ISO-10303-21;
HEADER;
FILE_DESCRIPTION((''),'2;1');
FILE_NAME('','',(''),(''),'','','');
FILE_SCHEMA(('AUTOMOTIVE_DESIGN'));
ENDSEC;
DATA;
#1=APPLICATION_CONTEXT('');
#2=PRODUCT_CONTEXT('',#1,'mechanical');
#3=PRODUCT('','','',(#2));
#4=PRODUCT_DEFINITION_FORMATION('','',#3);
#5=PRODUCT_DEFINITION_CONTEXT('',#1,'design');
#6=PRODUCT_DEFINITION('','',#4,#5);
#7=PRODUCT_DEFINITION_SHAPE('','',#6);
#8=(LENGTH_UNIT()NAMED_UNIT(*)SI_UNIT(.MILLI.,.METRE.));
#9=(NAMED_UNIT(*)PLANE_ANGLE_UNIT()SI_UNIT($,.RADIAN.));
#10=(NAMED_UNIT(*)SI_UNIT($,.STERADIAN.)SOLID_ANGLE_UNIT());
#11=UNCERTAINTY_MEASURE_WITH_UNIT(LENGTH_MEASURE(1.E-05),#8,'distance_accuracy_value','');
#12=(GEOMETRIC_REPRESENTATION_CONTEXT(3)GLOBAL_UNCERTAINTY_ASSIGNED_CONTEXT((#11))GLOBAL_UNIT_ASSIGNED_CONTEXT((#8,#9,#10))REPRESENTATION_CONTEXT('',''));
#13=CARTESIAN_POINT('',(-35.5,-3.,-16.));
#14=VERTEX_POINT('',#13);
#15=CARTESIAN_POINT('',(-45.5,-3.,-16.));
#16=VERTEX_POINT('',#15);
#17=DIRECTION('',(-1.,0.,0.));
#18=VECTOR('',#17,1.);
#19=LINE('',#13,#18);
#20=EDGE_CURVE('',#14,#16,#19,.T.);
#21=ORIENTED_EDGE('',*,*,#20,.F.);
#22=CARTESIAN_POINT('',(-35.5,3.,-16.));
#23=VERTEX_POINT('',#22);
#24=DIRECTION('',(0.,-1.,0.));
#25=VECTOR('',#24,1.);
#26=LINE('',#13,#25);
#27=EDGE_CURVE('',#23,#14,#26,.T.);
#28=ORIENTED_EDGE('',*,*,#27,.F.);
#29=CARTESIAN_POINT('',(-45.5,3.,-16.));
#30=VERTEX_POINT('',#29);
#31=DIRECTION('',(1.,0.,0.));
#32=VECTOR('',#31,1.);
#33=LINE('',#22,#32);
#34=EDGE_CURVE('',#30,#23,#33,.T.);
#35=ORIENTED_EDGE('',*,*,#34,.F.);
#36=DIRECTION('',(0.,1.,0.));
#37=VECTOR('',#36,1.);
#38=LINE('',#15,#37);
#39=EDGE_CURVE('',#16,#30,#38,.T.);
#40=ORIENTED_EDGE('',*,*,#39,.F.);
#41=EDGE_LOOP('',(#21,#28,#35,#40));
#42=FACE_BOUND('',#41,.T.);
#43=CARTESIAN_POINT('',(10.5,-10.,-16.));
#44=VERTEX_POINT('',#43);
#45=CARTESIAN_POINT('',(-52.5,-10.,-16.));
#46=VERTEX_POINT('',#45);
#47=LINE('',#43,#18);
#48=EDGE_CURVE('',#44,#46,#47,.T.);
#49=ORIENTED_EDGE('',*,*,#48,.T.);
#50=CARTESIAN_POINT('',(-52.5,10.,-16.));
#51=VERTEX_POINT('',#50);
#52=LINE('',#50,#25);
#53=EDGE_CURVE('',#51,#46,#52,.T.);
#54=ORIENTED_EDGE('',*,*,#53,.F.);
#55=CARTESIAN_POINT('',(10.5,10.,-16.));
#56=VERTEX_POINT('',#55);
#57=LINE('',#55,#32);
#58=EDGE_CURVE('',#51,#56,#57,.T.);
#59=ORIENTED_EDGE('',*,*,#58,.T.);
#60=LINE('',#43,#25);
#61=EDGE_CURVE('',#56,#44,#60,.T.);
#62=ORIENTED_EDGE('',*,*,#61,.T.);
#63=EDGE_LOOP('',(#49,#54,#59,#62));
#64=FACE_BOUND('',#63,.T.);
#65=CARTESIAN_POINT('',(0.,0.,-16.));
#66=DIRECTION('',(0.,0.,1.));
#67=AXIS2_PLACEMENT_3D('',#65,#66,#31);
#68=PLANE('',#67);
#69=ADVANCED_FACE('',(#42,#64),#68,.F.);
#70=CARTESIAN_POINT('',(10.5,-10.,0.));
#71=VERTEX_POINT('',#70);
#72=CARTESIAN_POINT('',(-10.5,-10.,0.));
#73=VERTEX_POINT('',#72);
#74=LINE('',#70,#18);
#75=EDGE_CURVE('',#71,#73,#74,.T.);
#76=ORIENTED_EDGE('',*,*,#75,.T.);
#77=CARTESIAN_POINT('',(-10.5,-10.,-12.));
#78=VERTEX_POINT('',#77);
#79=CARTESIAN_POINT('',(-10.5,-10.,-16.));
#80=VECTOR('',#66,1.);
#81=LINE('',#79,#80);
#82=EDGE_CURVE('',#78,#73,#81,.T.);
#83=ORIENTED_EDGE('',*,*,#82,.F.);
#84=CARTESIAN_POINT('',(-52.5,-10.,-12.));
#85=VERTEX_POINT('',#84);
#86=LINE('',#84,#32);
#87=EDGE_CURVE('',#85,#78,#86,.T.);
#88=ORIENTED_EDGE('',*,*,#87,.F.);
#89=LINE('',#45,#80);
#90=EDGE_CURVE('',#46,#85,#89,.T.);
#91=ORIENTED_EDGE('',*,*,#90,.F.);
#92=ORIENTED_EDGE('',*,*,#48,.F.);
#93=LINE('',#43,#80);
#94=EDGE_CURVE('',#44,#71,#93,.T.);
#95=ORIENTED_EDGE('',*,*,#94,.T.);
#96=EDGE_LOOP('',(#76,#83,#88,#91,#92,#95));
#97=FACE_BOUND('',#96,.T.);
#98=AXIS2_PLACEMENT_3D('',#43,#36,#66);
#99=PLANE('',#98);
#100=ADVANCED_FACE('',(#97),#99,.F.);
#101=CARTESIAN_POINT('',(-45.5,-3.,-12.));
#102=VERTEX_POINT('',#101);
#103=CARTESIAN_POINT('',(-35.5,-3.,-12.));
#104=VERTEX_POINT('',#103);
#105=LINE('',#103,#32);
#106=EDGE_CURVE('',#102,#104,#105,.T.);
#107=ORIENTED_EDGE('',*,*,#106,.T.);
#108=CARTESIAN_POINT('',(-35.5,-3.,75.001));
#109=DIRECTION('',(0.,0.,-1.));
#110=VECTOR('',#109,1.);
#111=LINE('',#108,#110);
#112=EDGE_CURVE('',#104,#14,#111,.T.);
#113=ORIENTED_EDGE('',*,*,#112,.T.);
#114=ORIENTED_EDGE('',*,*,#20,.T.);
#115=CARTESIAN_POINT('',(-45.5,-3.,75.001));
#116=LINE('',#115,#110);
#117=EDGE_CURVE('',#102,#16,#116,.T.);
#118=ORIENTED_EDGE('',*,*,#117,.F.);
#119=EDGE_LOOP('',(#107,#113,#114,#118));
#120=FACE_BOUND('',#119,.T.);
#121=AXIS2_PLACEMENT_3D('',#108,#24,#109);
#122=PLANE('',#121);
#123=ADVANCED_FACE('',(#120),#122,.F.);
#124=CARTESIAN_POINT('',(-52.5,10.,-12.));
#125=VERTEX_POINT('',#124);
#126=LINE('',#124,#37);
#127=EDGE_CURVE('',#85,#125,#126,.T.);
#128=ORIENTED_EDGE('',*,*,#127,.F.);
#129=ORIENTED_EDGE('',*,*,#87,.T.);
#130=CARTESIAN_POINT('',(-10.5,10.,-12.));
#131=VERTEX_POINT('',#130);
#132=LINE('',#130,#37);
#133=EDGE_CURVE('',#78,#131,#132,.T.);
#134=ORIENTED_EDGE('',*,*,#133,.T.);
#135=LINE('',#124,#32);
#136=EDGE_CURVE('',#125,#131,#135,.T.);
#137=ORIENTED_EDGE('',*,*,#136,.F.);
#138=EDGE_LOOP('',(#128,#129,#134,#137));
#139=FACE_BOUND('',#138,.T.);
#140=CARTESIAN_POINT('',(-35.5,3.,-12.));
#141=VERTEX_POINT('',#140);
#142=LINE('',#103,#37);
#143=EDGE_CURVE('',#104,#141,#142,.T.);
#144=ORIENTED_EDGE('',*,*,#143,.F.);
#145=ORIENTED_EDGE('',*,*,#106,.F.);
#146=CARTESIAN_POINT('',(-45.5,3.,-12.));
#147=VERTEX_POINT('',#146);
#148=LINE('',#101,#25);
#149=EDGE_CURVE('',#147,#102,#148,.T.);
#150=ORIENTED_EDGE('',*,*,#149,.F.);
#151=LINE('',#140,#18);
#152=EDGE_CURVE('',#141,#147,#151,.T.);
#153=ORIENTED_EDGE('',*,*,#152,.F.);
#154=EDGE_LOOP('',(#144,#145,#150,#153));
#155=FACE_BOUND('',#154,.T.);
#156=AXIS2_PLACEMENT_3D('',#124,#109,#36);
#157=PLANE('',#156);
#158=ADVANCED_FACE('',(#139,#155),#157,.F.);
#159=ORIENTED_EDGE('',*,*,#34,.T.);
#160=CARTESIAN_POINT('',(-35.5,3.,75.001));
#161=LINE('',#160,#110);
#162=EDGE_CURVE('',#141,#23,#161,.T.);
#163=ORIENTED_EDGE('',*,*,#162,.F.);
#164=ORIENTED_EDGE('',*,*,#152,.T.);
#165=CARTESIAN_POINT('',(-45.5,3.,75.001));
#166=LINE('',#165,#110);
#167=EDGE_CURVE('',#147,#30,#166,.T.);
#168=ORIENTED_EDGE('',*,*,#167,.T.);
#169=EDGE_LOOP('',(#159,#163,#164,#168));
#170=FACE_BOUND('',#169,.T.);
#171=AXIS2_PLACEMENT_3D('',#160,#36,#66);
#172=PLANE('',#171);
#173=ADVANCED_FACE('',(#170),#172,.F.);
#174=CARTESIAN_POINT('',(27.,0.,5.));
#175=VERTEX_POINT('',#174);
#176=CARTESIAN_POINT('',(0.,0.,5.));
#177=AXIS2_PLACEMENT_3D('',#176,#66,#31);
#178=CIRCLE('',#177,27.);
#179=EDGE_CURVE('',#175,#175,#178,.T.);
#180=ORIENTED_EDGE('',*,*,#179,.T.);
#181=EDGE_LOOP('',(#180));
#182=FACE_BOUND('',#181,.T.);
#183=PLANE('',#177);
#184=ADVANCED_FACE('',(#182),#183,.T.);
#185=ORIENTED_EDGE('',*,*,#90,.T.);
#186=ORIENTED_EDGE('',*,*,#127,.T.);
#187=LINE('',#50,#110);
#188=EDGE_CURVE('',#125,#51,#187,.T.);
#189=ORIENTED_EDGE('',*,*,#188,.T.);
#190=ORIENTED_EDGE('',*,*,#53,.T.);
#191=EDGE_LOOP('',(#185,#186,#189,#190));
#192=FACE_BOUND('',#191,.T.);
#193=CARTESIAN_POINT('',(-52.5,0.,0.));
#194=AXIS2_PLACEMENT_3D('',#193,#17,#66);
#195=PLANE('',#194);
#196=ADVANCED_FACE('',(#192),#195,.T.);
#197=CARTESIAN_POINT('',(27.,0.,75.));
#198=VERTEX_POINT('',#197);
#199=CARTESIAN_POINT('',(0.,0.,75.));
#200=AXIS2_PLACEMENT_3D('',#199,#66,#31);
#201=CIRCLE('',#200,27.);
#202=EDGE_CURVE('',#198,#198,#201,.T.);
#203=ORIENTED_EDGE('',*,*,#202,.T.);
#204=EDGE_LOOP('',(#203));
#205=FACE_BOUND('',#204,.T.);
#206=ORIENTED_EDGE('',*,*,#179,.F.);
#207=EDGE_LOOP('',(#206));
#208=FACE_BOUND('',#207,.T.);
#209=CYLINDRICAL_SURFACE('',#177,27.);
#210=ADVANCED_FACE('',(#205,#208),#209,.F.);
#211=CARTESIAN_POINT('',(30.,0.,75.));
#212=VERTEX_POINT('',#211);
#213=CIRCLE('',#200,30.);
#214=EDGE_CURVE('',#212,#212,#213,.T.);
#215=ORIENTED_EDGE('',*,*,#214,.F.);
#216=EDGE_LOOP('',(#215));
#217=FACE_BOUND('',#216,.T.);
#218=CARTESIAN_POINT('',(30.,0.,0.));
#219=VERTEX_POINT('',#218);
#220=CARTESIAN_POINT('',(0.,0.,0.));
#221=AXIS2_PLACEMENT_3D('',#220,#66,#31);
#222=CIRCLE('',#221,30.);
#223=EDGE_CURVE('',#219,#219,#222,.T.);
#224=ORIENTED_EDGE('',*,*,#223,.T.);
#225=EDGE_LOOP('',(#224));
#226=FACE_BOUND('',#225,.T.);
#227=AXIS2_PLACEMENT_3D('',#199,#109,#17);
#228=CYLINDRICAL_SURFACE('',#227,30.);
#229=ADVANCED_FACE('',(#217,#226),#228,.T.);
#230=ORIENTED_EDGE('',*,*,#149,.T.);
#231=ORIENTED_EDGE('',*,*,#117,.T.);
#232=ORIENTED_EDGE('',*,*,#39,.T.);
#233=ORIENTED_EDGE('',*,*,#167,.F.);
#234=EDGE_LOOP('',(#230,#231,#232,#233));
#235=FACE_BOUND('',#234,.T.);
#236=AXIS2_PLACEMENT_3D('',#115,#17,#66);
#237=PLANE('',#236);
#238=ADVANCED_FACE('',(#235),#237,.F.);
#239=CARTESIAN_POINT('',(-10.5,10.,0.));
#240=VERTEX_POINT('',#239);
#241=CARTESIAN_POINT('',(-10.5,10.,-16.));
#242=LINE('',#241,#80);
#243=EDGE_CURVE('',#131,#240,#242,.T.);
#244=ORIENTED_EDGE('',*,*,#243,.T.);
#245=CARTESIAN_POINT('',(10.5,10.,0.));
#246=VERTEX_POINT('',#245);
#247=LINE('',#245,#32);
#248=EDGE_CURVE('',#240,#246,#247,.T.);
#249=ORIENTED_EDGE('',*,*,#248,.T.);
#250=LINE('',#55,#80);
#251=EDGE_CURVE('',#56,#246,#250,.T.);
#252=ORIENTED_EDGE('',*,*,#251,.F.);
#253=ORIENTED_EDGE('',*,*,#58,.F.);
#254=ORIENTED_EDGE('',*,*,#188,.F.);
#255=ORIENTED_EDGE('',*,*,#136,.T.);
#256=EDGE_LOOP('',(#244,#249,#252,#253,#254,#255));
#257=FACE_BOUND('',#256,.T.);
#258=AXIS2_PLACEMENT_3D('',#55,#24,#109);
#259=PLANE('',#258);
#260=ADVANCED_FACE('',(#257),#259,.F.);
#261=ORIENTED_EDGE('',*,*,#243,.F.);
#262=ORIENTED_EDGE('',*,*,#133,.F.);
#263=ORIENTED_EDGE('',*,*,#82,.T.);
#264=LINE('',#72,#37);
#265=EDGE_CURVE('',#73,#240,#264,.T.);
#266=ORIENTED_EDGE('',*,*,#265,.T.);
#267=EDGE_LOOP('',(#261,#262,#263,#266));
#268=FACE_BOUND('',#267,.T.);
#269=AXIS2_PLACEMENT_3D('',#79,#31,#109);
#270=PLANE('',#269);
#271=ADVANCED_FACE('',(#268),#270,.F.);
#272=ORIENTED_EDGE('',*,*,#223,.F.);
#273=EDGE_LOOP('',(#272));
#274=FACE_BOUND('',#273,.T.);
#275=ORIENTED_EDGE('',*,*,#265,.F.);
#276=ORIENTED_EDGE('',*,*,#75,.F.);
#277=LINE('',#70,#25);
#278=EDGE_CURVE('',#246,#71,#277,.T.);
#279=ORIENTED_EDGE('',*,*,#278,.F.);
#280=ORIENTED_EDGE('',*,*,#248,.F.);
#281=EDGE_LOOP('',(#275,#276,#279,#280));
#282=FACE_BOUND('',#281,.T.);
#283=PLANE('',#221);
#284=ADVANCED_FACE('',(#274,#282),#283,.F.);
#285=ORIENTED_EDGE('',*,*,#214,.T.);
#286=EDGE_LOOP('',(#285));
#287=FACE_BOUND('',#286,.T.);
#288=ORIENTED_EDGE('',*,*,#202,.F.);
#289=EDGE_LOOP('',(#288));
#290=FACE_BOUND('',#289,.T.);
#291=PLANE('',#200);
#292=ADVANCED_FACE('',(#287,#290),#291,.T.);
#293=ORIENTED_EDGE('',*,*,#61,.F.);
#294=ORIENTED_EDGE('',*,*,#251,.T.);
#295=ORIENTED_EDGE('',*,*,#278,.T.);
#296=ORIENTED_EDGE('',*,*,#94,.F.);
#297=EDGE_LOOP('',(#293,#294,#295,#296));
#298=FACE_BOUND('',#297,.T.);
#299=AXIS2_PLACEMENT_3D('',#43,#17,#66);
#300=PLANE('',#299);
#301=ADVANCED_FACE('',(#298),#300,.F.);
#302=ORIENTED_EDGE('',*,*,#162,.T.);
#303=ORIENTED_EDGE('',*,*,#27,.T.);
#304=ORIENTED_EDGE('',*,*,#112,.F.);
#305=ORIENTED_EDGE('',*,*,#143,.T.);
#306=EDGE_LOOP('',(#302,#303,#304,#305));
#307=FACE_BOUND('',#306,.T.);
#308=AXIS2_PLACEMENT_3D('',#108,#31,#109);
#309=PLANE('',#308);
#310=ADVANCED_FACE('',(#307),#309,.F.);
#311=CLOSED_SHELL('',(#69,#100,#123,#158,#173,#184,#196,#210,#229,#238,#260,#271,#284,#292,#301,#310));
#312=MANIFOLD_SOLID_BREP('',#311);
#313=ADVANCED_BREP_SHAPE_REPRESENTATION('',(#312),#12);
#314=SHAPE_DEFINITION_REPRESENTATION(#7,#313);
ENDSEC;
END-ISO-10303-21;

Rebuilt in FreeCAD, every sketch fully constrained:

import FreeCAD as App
import Part
import Sketcher
from FreeCAD import Vector

doc = App.newDocument("Part")
body = doc.addObject("PartDesign::Body", "Body")

# Sketch on XY plane
sketch1 = doc.addObject("Sketcher::SketchObject", "Sketch")
body.addObject(sketch1)
sketch1.AttachmentSupport = (doc.XY_Plane, [""])
sketch1.MapMode = "FlatFace"
sketch1.addGeometry(Part.Circle(Vector(0, 0, 0), Vector(0, 0, 1), 30), False)
sketch1.addConstraint([
    Sketcher.Constraint("Coincident", 0, 3, -1, 1),
    Sketcher.Constraint("Diameter", 0, 60.0),
])
pad1 = doc.addObject("PartDesign::Pad", "Pad")
body.addObject(pad1)
pad1.Profile = sketch1
pad1.Length = 75

# Sketch on XY plane
sketch2 = doc.addObject("Sketcher::SketchObject", "Sketch001")
body.addObject(sketch2)
sketch2.AttachmentSupport = (doc.XY_Plane, [""])
sketch2.MapMode = "FlatFace"
sketch2.AttachmentOffset = App.Placement(Vector(0, 0, 75), App.Rotation())
sketch2.addGeometry(Part.Circle(Vector(0, 0, 0), Vector(0, 0, 1), 27), False)
sketch2.addConstraint([
    Sketcher.Constraint("Coincident", 0, 3, -1, 1),
    Sketcher.Constraint("Diameter", 0, 54.0),
])
pocket1 = doc.addObject("PartDesign::Pocket", "Pocket")
body.addObject(pocket1)
pocket1.Profile = sketch2
pocket1.Length = 70

# Sketch on XY plane
sketch3 = doc.addObject("Sketcher::SketchObject", "Sketch002")
body.addObject(sketch3)
sketch3.AttachmentSupport = (doc.XY_Plane, [""])
sketch3.MapMode = "FlatFace"
sketch3.addGeometry([
    Part.LineSegment(Vector(10, 10, 0), Vector(10, -10, 0)),
    Part.LineSegment(Vector(10, -10, 0), Vector(-10, -10, 0)),
    Part.LineSegment(Vector(-10, -10, 0), Vector(-10, 10, 0)),
    Part.LineSegment(Vector(-10, 10, 0), Vector(10, 10, 0)),
], False)
sketch3.addConstraint([
    Sketcher.Constraint("Coincident", 0, 2, 1, 1),
    Sketcher.Constraint("Coincident", 1, 2, 2, 1),
    Sketcher.Constraint("Coincident", 2, 2, 3, 1),
    Sketcher.Constraint("Coincident", 3, 2, 0, 1),
    Sketcher.Constraint("Vertical", 0),
    Sketcher.Constraint("Horizontal", 1),
    Sketcher.Constraint("Vertical", 2),
    Sketcher.Constraint("Horizontal", 3),
    Sketcher.Constraint("Symmetric", 0, 2, 2, 2, -1, 1),
    Sketcher.Constraint("DistanceX", 1, 2, 1, 1, 21.0),
    Sketcher.Constraint("DistanceY", 0, 2, 0, 1, 20.0),
])
pad2 = doc.addObject("PartDesign::Pad", "Pad001")
body.addObject(pad2)
pad2.Profile = sketch3
pad2.Length = 16
pad2.Reversed = True

# Sketch on YZ plane
sketch4 = doc.addObject("Sketcher::SketchObject", "Sketch003")
body.addObject(sketch4)
sketch4.AttachmentSupport = (doc.YZ_Plane, [""])
sketch4.MapMode = "FlatFace"
sketch4.AttachmentOffset = App.Placement(Vector(0, 0, -10.5), App.Rotation())
sketch4.addGeometry([
    Part.LineSegment(Vector(10, -16, 0), Vector(-10, -16, 0)),
    Part.LineSegment(Vector(-10, -16, 0), Vector(-10, -12, 0)),
    Part.LineSegment(Vector(-10, -12, 0), Vector(10, -12, 0)),
    Part.LineSegment(Vector(10, -12, 0), Vector(10, -16, 0)),
], False)
sketch4.addConstraint([
    Sketcher.Constraint("Coincident", 0, 2, 1, 1),
    Sketcher.Constraint("Coincident", 1, 2, 2, 1),
    Sketcher.Constraint("Coincident", 2, 2, 3, 1),
    Sketcher.Constraint("Coincident", 3, 2, 0, 1),
    Sketcher.Constraint("Horizontal", 0),
    Sketcher.Constraint("Vertical", 1),
    Sketcher.Constraint("Horizontal", 2),
    Sketcher.Constraint("Vertical", 3),
    Sketcher.Constraint("DistanceX", 0, 2, 0, 1, 20.0),
    Sketcher.Constraint("DistanceY", 1, 1, 1, 2, 4.0),
    Sketcher.Constraint("DistanceX", 0, 2, -1, 1, 10.0),
    Sketcher.Constraint("DistanceY", 0, 2, -1, 1, 16.0),
])
pad3 = doc.addObject("PartDesign::Pad", "Pad002")
body.addObject(pad3)
pad3.Profile = sketch4
pad3.Length = 42
pad3.Reversed = True

# Sketch on XY plane
sketch5 = doc.addObject("Sketcher::SketchObject", "Sketch004")
body.addObject(sketch5)
sketch5.AttachmentSupport = (doc.XY_Plane, [""])
sketch5.MapMode = "FlatFace"
sketch5.AttachmentOffset = App.Placement(Vector(0, 0, -16), App.Rotation())
sketch5.addGeometry([
    Part.LineSegment(Vector(-36, 3, 0), Vector(-36, -3, 0)),
    Part.LineSegment(Vector(-36, -3, 0), Vector(-46, -3, 0)),
    Part.LineSegment(Vector(-46, -3, 0), Vector(-46, 3, 0)),
    Part.LineSegment(Vector(-46, 3, 0), Vector(-36, 3, 0)),
], False)
sketch5.addConstraint([
    Sketcher.Constraint("Coincident", 0, 2, 1, 1),
    Sketcher.Constraint("Coincident", 1, 2, 2, 1),
    Sketcher.Constraint("Coincident", 2, 2, 3, 1),
    Sketcher.Constraint("Coincident", 3, 2, 0, 1),
    Sketcher.Constraint("Vertical", 0),
    Sketcher.Constraint("Horizontal", 1),
    Sketcher.Constraint("Vertical", 2),
    Sketcher.Constraint("Horizontal", 3),
    Sketcher.Constraint("DistanceX", 1, 2, 1, 1, 10.0),
    Sketcher.Constraint("DistanceY", 0, 2, 0, 1, 6.0),
    Sketcher.Constraint("DistanceY", 0, 2, -1, 1, 3.0),
    Sketcher.Constraint("DistanceX", 0, 2, -1, 1, 35.5),
])
pocket2 = doc.addObject("PartDesign::Pocket", "Pocket001")
body.addObject(pocket2)
pocket2.Profile = sketch5
pocket2.Type = "UpToFirst"
pocket2.Reversed = True

doc.recompute()
